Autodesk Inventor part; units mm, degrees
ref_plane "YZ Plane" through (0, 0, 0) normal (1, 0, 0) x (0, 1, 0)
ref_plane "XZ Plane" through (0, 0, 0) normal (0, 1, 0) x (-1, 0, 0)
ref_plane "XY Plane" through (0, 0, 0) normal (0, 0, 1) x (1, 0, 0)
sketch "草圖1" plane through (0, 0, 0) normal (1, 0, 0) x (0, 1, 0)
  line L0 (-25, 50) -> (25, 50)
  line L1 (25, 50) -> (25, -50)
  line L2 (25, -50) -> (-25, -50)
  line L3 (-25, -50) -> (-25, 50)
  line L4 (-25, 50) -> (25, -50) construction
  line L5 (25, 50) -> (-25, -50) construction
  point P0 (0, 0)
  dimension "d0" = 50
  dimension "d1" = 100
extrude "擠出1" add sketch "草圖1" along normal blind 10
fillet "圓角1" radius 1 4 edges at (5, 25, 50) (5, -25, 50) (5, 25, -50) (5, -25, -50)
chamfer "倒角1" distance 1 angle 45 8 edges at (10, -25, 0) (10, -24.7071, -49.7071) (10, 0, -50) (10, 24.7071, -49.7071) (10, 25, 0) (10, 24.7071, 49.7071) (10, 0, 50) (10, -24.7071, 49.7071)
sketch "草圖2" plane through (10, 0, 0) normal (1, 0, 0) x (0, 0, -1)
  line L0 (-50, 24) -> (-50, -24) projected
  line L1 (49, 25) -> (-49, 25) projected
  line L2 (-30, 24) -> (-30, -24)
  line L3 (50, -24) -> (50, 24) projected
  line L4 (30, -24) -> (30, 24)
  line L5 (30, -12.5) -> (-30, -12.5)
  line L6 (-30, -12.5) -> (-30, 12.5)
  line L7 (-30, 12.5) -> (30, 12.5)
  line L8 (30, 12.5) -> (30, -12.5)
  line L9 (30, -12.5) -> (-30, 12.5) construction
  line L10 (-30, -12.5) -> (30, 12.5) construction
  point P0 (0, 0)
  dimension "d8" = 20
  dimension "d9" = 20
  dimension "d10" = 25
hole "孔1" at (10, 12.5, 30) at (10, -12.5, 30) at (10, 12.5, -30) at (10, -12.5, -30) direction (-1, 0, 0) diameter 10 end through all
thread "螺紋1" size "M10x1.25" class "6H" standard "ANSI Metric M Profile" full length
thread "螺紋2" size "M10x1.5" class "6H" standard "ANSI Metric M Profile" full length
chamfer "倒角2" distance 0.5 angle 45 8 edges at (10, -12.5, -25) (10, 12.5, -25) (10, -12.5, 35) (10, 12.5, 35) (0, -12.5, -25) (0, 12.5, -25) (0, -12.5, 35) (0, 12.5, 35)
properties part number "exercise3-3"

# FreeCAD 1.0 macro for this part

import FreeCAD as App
import Part
import Sketcher
from FreeCAD import Vector


def edges_at(feature, points):
    """Names of the edges that pass closest to the given points."""
    edges = feature.Shape.Edges
    near = lambda p: min(range(len(edges)), key=lambda i: edges[i].distToShape(Part.Vertex(*p))[0])
    return sorted({f"Edge{near(p) + 1}" for p in points})


def add_polygon(sketch, points):
    """Adds a closed chain of lines whose ends are joined by coincident constraints."""
    first, n = sketch.GeometryCount, len(points)
    for a, b in zip(points, points[1:] + points[:1]):
        sketch.addGeometry(Part.LineSegment(App.Vector(*a, 0), App.Vector(*b, 0)), False)
    for i in range(n):
        sketch.addConstraint(Sketcher.Constraint("Coincident", first + i, 2, first + (i + 1) % n, 1))

doc = App.newDocument("Part")
body = doc.addObject("PartDesign::Body", "Body")

# Sketch on YZ plane
sketch1 = body.newObject("Sketcher::SketchObject", "Sketch")
sketch1.AttachmentSupport = (doc.getObject("YZ_Plane"), [""])
sketch1.MapMode = "FlatFace"
add_polygon(sketch1, [(25, 50), (-25, 50), (-25, -50), (25, -50)])  # lines 0-3
sketch1.addConstraint([
    Sketcher.Constraint("Horizontal", 0),
    Sketcher.Constraint("Vertical", 1),
    Sketcher.Constraint("Horizontal", 2),
    Sketcher.Constraint("Vertical", 3),
    Sketcher.Constraint("Symmetric", 0, 2, 2, 2, -1, 1),
    Sketcher.Constraint("DistanceX", 0, 2, 0, 1, 50.0),
    Sketcher.Constraint("DistanceY", 1, 2, 1, 1, 100.0),
])
pad1 = body.newObject("PartDesign::Pad", "Pad")
pad1.Profile = sketch1
pad1.Length = 10
doc.recompute()

fillet = body.newObject("PartDesign::Fillet", "Fillet")
fillet.Base = (pad1, edges_at(pad1, [
    (5, 25, 50),
    (5, -25, 50),
    (5, 25, -50),
    (5, -25, -50),
]))
fillet.Radius = 1
doc.recompute()

chamfer = body.newObject("PartDesign::Chamfer", "Chamfer")
chamfer.Base = (fillet, edges_at(fillet, [
    (10, -25, 0),
    (10, -24.707, -49.707),
    (10, 0, -50),
    (10, 24.707, -49.707),
    (10, 25, 0),
    (10, 24.707, 49.707),
    (10, 0, 50),
    (10, -24.707, 49.707),
]))
chamfer.Size = 1

# Sketch on YZ plane
sketch2 = body.newObject("Sketcher::SketchObject", "Sketch001")
sketch2.AttachmentSupport = (doc.getObject("YZ_Plane"), [""])
sketch2.MapMode = "FlatFace"
sketch2.AttachmentOffset = App.Placement(Vector(0, 0, 10), App.Rotation())
sketch2.addGeometry([
    Part.Circle(Vector(12.5, 30, 0), Vector(0, 0, 1), 5),
    Part.Circle(Vector(-12.5, 30, 0), Vector(0, 0, 1), 5),
    Part.Circle(Vector(12.5, -30, 0), Vector(0, 0, 1), 5),
    Part.Circle(Vector(-12.5, -30, 0), Vector(0, 0, 1), 5),
], False)
sketch2.addConstraint([
    Sketcher.Constraint("Equal", 0, 1),
    Sketcher.Constraint("Equal", 1, 2),
    Sketcher.Constraint("Equal", 2, 3),
    Sketcher.Constraint("Symmetric", 1, 3, 2, 3, -1, 1),
    Sketcher.Constraint("Symmetric", 0, 3, 3, 3, -1, 1),
    Sketcher.Constraint("Symmetric", 0, 3, 1, 3, -2),
    Sketcher.Constraint("Diameter", 0, 10.0),
    Sketcher.Constraint("DistanceY", -1, 1, 0, 3, 30.0),
    Sketcher.Constraint("DistanceX", 1, 3, 0, 3, 25.0),
])
doc.recompute()
hole = body.newObject("PartDesign::Hole", "Hole")
hole.Profile = sketch2
hole.ThreadType = "None"
hole.Diameter = 10
hole.DepthType = "ThroughAll"
doc.recompute()

chamfer2 = body.newObject("PartDesign::Chamfer", "Chamfer001")
chamfer2.Base = (hole, edges_at(hole, [
    (10, -12.5, -25),
    (10, 12.5, -25),
    (10, -12.5, 35),
    (10, 12.5, 35),
    (0, -12.5, -25),
    (0, 12.5, -25),
    (0, -12.5, 35),
    (0, 12.5, 35),
]))
chamfer2.Size = 0.5

doc.recompute()
